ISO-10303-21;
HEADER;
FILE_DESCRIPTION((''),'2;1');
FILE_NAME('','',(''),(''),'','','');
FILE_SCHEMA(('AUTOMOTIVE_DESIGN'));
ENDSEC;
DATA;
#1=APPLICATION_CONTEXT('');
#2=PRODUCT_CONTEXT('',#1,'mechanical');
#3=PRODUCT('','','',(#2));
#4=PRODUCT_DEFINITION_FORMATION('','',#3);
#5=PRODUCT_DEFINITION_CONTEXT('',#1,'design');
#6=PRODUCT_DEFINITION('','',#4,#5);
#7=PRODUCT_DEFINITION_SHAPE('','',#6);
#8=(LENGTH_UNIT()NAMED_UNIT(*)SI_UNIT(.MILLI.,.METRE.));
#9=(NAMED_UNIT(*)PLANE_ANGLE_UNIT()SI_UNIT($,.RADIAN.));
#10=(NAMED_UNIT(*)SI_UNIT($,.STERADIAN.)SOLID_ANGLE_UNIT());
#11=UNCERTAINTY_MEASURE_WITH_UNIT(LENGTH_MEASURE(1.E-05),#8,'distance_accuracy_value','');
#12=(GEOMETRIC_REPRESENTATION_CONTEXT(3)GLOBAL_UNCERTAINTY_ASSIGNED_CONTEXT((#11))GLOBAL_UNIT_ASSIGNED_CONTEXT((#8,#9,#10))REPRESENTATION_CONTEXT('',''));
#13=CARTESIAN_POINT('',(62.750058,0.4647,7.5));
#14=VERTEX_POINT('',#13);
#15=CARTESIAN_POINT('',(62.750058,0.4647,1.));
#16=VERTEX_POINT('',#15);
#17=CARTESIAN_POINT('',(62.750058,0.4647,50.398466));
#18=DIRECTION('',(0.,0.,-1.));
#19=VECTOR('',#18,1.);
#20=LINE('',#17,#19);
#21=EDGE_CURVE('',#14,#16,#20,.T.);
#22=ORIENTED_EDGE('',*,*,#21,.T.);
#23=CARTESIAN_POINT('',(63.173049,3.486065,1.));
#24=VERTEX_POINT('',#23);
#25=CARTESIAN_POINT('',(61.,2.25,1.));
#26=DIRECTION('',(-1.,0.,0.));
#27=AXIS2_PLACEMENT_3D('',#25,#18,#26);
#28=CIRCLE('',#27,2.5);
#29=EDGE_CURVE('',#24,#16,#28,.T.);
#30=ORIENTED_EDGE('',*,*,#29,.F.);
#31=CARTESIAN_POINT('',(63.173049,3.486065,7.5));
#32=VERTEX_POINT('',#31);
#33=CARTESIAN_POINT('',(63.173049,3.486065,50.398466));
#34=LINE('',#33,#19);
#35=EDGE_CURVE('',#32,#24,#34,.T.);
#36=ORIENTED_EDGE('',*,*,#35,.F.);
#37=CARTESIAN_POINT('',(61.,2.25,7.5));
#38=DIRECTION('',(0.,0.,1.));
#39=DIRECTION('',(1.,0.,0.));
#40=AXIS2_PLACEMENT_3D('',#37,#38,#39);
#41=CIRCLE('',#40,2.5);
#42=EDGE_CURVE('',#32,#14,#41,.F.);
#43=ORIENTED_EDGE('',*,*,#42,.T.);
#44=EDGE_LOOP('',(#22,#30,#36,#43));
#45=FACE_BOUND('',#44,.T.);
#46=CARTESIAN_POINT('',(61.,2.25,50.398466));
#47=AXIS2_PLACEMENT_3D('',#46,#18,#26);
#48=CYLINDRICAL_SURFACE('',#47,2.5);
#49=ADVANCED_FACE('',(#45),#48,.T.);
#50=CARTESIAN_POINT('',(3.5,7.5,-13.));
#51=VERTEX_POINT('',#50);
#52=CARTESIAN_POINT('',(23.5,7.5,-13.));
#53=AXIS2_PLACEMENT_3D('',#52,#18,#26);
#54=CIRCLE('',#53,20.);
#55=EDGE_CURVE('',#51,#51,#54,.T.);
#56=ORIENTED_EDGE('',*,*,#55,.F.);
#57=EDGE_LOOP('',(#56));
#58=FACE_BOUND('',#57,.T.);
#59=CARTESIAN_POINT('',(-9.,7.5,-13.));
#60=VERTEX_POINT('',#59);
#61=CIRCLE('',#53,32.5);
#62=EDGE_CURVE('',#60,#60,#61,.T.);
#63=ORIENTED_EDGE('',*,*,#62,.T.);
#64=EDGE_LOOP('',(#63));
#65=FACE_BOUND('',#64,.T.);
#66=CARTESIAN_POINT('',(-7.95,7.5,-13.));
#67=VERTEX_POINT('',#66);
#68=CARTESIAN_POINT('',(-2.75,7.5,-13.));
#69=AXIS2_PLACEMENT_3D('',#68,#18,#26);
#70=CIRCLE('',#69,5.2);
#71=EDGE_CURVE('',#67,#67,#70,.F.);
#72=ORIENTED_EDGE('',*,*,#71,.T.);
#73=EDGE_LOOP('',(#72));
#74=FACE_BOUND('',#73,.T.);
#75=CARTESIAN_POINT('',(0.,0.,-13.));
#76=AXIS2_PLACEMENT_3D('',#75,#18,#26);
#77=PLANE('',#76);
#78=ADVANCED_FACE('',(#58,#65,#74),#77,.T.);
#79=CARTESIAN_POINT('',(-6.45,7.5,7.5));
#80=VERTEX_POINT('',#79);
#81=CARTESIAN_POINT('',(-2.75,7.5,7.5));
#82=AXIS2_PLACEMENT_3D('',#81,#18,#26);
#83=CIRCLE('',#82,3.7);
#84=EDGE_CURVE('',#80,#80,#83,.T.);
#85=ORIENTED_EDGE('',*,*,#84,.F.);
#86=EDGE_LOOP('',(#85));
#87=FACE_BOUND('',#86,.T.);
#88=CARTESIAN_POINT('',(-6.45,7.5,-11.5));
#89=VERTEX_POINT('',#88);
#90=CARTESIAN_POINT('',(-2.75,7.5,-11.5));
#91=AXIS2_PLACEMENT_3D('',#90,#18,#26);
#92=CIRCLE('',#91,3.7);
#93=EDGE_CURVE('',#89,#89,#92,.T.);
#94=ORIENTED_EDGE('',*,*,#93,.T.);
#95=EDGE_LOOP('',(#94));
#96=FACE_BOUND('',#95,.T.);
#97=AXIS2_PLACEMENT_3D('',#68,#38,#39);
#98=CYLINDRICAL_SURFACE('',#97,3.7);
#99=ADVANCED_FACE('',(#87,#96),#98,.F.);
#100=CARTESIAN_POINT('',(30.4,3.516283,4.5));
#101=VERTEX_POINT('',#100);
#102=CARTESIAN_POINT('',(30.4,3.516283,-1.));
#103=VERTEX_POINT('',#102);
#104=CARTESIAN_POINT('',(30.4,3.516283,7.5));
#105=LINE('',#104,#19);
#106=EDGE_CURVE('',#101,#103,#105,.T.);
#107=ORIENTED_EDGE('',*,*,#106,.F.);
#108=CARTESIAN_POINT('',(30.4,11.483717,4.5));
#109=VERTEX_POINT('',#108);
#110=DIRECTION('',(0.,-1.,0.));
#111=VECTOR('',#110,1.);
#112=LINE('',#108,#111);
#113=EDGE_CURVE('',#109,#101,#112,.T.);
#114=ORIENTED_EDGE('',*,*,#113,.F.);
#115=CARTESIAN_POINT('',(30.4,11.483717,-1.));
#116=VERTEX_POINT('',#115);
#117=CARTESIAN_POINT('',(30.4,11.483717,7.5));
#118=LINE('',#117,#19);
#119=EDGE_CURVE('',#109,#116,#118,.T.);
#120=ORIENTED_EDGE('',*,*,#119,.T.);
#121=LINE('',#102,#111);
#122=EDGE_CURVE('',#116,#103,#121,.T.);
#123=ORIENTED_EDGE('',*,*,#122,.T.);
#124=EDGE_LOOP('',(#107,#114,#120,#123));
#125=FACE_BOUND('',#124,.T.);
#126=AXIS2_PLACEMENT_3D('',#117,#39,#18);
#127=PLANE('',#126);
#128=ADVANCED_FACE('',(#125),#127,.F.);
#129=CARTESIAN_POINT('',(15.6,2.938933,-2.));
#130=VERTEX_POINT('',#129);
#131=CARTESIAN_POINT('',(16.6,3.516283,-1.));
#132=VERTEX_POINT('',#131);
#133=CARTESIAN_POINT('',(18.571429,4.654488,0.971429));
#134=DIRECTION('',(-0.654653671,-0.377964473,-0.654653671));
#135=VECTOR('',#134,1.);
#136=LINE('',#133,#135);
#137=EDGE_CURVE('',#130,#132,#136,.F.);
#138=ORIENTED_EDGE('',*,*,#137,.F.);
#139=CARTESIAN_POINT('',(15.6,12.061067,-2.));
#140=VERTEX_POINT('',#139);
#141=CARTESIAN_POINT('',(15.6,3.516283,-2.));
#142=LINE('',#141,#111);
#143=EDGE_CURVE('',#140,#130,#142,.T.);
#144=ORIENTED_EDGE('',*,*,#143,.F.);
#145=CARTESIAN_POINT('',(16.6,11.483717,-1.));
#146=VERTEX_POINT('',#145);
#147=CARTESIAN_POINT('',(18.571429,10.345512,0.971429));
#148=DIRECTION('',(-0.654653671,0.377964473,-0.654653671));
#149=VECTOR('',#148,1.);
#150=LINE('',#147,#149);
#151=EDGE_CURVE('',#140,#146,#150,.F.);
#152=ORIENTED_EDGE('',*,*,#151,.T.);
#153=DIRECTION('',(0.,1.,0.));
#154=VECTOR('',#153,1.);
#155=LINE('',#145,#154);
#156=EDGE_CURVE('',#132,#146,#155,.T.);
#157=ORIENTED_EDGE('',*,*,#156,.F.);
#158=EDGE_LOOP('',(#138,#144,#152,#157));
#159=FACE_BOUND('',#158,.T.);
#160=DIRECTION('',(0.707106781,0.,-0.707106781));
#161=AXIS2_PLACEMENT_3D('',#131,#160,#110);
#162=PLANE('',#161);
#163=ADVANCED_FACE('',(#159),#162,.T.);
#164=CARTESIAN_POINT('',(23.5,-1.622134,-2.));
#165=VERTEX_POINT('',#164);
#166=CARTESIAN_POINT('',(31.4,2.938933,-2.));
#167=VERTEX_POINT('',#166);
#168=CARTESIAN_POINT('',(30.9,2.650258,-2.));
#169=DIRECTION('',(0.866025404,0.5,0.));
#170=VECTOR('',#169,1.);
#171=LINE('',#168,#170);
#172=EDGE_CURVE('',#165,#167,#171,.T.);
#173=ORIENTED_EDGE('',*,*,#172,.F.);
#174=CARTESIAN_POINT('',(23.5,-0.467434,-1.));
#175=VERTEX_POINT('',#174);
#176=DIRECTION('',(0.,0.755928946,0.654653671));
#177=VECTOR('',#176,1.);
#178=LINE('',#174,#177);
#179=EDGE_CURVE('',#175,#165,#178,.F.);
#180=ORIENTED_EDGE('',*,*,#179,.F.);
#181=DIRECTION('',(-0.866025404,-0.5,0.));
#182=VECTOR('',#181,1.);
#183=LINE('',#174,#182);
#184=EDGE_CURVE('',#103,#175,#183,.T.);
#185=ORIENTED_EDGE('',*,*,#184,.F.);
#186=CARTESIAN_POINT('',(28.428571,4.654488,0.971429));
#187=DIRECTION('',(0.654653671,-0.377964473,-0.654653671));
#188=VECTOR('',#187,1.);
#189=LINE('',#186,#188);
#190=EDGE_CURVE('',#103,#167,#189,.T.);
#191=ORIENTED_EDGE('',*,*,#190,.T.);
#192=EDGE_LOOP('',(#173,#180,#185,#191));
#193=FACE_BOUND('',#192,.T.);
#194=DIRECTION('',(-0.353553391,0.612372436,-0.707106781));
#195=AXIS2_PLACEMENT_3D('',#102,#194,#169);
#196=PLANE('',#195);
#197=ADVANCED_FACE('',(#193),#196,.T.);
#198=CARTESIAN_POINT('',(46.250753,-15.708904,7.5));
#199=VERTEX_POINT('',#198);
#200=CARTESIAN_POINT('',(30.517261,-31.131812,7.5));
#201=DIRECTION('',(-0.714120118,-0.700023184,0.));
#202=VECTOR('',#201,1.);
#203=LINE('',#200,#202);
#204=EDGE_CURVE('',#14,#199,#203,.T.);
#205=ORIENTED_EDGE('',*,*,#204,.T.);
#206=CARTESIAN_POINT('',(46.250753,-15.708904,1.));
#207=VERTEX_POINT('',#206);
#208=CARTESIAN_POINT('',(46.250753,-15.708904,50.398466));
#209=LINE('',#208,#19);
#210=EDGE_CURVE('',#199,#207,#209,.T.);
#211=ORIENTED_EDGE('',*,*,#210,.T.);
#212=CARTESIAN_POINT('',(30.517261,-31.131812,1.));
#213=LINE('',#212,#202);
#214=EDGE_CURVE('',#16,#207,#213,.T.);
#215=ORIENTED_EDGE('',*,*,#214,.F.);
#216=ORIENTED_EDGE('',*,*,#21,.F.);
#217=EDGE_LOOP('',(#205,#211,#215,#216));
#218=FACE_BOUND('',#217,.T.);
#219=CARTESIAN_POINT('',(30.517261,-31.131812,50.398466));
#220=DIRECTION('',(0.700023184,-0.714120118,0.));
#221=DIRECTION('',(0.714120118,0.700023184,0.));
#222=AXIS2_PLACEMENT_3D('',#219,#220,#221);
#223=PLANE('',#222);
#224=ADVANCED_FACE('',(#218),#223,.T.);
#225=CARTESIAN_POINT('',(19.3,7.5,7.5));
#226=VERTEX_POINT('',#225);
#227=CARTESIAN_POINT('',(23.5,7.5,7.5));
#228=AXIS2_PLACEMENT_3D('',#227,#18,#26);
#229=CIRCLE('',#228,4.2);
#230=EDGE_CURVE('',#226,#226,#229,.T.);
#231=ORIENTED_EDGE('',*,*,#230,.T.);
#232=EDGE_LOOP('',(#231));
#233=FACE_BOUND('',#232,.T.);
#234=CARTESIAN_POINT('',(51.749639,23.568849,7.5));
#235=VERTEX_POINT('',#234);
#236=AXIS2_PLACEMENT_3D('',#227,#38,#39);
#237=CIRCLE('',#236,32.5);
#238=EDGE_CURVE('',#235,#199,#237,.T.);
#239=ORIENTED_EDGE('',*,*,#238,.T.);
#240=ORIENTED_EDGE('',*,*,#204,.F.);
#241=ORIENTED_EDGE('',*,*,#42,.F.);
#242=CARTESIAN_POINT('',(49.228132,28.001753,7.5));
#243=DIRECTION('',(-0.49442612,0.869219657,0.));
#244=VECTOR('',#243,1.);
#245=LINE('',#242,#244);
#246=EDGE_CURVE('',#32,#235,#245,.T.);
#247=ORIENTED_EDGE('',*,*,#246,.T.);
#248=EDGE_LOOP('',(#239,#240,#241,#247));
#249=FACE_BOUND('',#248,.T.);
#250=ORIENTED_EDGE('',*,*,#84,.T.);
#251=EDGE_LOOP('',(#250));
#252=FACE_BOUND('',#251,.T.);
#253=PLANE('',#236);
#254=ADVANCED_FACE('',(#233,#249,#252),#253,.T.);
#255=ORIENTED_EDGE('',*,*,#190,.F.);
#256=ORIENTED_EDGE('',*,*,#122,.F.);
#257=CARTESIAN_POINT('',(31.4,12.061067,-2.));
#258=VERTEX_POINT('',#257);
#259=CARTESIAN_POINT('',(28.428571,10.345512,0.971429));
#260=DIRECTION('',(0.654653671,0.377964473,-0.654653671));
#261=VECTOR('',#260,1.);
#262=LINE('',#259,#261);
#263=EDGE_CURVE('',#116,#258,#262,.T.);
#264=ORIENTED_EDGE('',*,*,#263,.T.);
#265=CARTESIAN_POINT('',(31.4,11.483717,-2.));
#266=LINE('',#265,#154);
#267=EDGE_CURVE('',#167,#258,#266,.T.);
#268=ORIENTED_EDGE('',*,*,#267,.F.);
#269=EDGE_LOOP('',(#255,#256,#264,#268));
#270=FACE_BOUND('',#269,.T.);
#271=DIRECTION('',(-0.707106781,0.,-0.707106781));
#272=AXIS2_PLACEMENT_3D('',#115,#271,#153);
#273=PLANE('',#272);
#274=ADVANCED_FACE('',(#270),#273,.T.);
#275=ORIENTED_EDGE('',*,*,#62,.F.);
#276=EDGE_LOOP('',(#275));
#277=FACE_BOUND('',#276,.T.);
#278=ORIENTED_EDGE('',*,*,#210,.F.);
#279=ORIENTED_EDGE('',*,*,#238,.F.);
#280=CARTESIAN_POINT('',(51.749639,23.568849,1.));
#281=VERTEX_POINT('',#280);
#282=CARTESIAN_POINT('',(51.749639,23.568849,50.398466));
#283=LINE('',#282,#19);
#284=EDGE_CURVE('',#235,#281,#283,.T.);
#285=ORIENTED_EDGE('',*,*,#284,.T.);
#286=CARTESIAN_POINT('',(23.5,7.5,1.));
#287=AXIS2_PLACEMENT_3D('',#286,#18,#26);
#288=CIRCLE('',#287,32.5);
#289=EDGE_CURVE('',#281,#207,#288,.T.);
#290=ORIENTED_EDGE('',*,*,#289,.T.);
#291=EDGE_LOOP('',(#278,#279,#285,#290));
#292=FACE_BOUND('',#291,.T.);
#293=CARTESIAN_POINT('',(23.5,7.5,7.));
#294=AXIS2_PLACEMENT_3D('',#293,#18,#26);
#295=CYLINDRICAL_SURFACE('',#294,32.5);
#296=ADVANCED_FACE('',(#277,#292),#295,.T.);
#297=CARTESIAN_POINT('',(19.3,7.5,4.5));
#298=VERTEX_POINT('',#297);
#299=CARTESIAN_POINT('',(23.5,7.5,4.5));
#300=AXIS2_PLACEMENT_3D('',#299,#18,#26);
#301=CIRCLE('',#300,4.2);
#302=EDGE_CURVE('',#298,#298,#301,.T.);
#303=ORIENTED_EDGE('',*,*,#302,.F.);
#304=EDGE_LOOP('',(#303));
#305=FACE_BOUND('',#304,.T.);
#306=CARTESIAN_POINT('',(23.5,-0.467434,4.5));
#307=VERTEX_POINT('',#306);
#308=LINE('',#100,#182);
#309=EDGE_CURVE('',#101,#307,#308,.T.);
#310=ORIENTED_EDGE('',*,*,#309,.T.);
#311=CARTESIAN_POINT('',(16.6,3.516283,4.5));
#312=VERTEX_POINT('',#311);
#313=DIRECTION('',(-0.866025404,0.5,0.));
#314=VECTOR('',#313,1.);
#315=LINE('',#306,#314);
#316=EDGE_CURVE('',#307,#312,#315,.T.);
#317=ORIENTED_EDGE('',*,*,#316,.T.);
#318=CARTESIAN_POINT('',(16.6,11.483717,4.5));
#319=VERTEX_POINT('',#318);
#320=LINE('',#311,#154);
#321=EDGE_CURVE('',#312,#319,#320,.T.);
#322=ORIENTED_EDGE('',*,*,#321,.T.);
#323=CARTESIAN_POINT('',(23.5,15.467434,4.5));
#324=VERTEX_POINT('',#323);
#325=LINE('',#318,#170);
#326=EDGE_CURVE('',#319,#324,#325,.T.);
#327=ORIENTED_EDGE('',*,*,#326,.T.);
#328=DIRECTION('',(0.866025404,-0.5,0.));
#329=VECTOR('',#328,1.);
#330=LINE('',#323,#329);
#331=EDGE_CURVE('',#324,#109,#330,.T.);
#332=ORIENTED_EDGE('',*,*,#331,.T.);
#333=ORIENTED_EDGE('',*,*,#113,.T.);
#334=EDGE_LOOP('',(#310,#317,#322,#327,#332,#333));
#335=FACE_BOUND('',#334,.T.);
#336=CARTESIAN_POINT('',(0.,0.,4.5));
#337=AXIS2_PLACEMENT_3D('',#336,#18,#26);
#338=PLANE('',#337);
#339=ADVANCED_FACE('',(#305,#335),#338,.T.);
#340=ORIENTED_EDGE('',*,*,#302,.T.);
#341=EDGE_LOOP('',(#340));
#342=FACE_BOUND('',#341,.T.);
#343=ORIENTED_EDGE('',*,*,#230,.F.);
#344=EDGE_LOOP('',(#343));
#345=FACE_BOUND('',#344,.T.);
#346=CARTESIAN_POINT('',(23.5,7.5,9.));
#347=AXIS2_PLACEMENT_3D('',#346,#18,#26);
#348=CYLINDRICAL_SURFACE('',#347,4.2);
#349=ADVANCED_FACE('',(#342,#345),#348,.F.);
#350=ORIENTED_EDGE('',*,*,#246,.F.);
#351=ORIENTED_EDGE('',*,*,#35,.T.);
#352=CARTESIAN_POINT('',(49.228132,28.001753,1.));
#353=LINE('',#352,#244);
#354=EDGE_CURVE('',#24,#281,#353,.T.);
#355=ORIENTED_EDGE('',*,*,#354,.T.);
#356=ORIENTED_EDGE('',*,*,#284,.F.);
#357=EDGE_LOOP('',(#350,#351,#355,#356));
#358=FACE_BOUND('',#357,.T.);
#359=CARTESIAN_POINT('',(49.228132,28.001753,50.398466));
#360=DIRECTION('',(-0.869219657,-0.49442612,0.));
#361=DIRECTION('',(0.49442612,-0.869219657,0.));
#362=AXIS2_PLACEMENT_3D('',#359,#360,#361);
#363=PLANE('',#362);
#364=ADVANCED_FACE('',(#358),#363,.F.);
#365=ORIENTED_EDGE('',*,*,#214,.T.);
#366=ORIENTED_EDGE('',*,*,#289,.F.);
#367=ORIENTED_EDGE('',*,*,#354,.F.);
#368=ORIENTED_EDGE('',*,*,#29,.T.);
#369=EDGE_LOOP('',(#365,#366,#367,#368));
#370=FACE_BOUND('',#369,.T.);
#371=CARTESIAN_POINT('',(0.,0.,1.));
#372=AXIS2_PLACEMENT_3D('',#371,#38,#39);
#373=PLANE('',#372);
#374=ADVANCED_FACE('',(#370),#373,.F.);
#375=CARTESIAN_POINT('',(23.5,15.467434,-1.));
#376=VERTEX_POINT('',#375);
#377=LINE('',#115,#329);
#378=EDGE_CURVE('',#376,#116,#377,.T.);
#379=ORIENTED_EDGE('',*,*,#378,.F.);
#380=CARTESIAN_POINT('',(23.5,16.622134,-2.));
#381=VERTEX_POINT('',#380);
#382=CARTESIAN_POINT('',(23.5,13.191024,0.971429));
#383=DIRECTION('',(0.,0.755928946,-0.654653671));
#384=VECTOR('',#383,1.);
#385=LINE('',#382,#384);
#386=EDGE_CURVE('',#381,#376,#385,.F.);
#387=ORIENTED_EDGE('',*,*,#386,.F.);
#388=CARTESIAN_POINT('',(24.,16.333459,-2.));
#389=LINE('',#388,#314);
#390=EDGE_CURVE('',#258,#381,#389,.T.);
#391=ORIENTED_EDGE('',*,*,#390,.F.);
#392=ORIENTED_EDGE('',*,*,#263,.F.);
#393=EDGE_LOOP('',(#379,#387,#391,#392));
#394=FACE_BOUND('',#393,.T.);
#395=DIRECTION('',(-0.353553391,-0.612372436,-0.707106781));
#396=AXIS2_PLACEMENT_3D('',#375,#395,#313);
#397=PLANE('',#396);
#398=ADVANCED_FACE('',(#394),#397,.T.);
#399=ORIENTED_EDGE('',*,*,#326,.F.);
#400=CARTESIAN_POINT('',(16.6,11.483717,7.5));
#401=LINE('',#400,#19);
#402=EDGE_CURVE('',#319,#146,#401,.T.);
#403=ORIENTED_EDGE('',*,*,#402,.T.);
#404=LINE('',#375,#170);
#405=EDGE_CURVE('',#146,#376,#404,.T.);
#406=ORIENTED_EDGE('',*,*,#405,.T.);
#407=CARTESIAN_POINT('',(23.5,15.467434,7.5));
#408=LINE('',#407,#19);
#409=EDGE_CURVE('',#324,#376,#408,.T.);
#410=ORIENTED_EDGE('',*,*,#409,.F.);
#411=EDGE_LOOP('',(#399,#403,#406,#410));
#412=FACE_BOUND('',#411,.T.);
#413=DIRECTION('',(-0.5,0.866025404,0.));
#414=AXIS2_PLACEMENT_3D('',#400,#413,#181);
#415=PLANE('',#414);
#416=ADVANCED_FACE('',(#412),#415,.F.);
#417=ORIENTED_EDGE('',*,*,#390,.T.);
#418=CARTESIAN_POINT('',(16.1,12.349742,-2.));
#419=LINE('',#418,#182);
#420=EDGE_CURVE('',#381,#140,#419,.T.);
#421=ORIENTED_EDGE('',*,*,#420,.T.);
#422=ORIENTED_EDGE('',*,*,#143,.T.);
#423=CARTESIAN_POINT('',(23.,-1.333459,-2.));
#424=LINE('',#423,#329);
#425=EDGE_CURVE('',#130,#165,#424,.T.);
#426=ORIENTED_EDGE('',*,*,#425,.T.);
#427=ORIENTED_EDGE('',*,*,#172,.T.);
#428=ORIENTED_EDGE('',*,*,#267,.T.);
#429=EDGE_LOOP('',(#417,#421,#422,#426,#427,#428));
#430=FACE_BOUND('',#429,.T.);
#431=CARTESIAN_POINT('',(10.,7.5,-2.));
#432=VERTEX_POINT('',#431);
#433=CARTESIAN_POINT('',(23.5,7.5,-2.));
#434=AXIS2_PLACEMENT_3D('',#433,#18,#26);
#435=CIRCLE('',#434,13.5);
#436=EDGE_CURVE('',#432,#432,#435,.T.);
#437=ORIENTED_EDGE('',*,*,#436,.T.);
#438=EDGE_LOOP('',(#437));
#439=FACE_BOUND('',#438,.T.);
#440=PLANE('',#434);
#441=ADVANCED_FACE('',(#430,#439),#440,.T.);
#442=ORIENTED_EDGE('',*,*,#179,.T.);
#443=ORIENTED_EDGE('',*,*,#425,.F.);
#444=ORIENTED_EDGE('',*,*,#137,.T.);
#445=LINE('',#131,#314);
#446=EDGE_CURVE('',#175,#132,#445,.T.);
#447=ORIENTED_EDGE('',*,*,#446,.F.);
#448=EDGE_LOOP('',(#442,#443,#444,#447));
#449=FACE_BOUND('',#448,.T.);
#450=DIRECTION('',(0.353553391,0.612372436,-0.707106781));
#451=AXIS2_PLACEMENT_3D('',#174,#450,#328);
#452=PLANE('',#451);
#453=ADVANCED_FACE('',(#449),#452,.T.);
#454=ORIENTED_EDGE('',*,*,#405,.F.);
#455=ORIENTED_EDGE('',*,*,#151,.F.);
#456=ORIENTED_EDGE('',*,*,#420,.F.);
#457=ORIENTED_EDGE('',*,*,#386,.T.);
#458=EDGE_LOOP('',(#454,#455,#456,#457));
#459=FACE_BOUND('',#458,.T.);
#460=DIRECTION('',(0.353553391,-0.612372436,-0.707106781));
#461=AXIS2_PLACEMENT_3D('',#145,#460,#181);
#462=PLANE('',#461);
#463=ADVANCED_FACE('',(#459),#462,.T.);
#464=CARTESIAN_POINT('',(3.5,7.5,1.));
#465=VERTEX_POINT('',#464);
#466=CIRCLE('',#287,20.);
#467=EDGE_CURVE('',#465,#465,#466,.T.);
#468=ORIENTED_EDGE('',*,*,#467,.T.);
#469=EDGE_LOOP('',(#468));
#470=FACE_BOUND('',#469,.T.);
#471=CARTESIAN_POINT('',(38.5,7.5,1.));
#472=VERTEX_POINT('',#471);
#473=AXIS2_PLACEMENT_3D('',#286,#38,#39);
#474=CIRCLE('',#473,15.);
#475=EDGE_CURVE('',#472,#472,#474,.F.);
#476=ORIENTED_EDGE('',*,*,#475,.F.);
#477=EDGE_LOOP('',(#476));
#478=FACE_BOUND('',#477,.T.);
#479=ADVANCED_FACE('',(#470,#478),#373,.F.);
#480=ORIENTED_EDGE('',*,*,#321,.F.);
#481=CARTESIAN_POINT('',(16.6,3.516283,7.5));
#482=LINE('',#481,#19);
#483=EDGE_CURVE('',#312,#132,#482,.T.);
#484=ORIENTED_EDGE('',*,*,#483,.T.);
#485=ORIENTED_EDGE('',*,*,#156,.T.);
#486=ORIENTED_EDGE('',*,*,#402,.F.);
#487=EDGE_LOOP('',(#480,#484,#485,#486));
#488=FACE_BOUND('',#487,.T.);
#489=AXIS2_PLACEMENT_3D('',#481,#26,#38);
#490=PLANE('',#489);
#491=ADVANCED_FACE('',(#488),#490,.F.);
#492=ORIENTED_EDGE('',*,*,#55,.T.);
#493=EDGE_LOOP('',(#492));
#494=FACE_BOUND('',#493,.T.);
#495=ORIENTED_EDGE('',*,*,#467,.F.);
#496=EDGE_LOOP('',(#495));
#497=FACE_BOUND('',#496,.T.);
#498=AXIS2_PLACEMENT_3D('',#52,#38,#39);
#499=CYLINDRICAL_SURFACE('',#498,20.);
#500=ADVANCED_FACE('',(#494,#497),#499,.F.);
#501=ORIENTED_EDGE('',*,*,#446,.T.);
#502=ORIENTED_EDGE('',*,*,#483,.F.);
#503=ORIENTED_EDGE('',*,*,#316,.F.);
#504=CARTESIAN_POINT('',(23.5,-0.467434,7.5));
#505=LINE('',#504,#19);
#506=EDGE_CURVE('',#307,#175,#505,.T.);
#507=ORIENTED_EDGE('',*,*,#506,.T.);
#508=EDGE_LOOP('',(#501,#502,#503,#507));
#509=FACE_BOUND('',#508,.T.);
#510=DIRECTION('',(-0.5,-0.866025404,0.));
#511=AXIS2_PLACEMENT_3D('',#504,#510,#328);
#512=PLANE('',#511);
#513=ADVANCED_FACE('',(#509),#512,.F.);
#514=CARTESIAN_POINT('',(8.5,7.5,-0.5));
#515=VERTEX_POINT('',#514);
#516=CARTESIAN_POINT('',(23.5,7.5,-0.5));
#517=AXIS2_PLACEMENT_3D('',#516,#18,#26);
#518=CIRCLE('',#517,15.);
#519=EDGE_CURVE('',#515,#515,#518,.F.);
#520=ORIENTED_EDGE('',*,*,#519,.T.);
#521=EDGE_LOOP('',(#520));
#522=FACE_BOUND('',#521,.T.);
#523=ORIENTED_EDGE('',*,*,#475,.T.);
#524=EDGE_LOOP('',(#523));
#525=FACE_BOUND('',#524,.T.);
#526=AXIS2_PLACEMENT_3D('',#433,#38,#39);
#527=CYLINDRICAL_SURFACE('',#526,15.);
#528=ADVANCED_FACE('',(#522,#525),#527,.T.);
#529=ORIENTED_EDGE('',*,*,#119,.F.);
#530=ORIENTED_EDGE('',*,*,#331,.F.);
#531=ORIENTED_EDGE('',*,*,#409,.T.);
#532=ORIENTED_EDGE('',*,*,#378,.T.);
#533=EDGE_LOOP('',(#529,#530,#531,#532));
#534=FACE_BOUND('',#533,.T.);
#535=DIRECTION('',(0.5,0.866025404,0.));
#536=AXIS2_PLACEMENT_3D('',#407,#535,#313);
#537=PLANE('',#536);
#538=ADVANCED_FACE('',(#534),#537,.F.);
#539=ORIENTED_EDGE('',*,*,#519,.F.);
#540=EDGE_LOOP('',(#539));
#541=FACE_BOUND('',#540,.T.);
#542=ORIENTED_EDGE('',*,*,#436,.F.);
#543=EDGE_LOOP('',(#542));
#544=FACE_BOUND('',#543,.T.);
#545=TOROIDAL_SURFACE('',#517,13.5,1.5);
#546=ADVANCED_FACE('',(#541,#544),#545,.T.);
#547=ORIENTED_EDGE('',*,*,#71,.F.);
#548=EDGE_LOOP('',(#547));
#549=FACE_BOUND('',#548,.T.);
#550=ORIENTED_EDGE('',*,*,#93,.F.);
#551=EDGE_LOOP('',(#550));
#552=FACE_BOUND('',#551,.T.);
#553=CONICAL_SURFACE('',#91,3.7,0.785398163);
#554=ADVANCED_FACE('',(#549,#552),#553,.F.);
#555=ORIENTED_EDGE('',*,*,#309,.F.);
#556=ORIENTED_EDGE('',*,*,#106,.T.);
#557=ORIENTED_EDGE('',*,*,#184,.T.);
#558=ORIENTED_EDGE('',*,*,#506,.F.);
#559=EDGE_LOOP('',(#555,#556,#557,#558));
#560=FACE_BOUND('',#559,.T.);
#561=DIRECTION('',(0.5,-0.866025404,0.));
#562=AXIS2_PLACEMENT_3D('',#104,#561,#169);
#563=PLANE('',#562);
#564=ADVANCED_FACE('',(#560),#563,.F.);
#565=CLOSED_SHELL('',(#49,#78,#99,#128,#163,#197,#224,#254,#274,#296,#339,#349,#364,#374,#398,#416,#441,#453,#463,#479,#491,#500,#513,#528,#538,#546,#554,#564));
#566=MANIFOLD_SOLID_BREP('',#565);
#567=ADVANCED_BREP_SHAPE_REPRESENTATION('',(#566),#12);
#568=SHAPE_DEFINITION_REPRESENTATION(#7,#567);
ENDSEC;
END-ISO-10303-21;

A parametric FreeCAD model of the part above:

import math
import FreeCAD as App
import Part
import Sketcher
Q = App.Units.Quantity


def edges_at(feature, points):
    """Names of the edges that pass closest to the given points."""
    edges = feature.Shape.Edges
    near = lambda p: min(range(len(edges)), key=lambda i: edges[i].distToShape(Part.Vertex(*p))[0])
    return sorted({f"Edge{near(p) + 1}" for p in points})

doc = App.newDocument("Part")
body = doc.addObject("PartDesign::Body", "Body")

# Sketch on XY plane
sketch1 = body.newObject("Sketcher::SketchObject", "Sketch")
sketch1.AttachmentSupport = (doc.getObject("XY_Plane"), [""])
sketch1.MapMode = "FlatFace"
sketch1.AttachmentOffset = App.Placement(App.Vector(0, 0, 1), App.Rotation())
sketch1.addGeometry([
    Part.Circle(App.Vector(23.5, 7.5, 0), App.Vector(0, 0, 1), 32.5),  # 0
    Part.ArcOfCircle(Part.Circle(App.Vector(0, 0, 0), App.Vector(0, 0, 1), 3.5), math.radians(180), math.radians(360)),  # 1
    Part.LineSegment(App.Vector(-3.5, 0, 0), App.Vector(-3.5, 15, 0)),  # 2
    Part.ArcOfCircle(Part.Circle(App.Vector(0, 15, 0), App.Vector(0, 0, 1), 3.5), math.radians(0), math.radians(180)),  # 3
    Part.LineSegment(App.Vector(3.5, 15, 0), App.Vector(3.5, 0, 0)),  # 4
], False)
sketch1.addConstraint([
    Sketcher.Constraint("Tangent", 1, 1, 2, 1),
    Sketcher.Constraint("Tangent", 2, 2, 3, 2),
    Sketcher.Constraint("Tangent", 3, 1, 4, 1),
    Sketcher.Constraint("Tangent", 4, 2, 1, 2),
    Sketcher.Constraint("Vertical", 2),
    Sketcher.Constraint("Vertical", 4),
    Sketcher.Constraint("Coincident", 1, 3, -1, 1),
    Sketcher.Constraint("Diameter", 0, Q("65 mm")),
    Sketcher.Constraint("Radius", 1, Q("3.5 mm")),
    Sketcher.Constraint("DistanceY", 2, 1, 2, 2, Q("15 mm")),
    Sketcher.Constraint("DistanceX", 1, 1, 0, 3, Q("27 mm")),
    Sketcher.Constraint("DistanceY", -1, 1, 0, 3, Q("7.5 mm")),
])
pad1 = body.newObject("PartDesign::Pad", "Pad")
pad1.Profile = sketch1
pad1.Length = 6

# Sketch on XY plane
sketch2 = body.newObject("Sketcher::SketchObject", "Sketch001")
sketch2.AttachmentSupport = (doc.getObject("XY_Plane"), [""])
sketch2.MapMode = "FlatFace"
sketch2.AttachmentOffset = App.Placement(App.Vector(0, 0, 7), App.Rotation())
sketch2.addGeometry(Part.Circle(App.Vector(23.5, 7.5, 0), App.Vector(0, 0, 1), 32.5), False)
sketch2.addConstraint([
    Sketcher.Constraint("Diameter", 0, Q("65 mm")),
    Sketcher.Constraint("DistanceX", -1, 1, 0, 3, Q("23.5 mm")),
    Sketcher.Constraint("DistanceY", -1, 1, 0, 3, Q("7.5 mm")),
])
pad2 = body.newObject("PartDesign::Pad", "Pad001")
pad2.Profile = sketch2
pad2.Length = 2
doc.recompute()

chamfer = body.newObject("PartDesign::Chamfer", "Chamfer")
chamfer.Base = (pad2, edges_at(pad2, [
    (-3.5, 7.5, 1),
    (0, -3.5, 1),
    (3.5, 7.5, 1),
    (0, 18.5, 1),
]))
chamfer.Size = 2

# Sketch on XY plane
sketch3 = body.newObject("Sketcher::SketchObject", "Sketch002")
sketch3.AttachmentSupport = (doc.getObject("XY_Plane"), [""])
sketch3.MapMode = "FlatFace"
sketch3.AttachmentOffset = App.Placement(App.Vector(0, 0, 1), App.Rotation())
sketch3.addGeometry([
    Part.LineSegment(App.Vector(23.5, 15.467434, 0), App.Vector(30.4, 11.483717, 0)),  # 0
    Part.LineSegment(App.Vector(30.4, 11.483717, 0), App.Vector(30.4, 3.516283, 0)),  # 1
    Part.LineSegment(App.Vector(30.4, 3.516283, 0), App.Vector(23.5, -0.467434, 0)),  # 2
    Part.LineSegment(App.Vector(23.5, -0.467434, 0), App.Vector(16.6, 3.516283, 0)),  # 3
    Part.LineSegment(App.Vector(16.6, 3.516283, 0), App.Vector(16.6, 11.483717, 0)),  # 4
    Part.LineSegment(App.Vector(16.6, 11.483717, 0), App.Vector(23.5, 15.467434, 0)),  # 5
], False)
sketch3.addConstraint([
    Sketcher.Constraint("Coincident", 0, 2, 1, 1),
    Sketcher.Constraint("Coincident", 1, 2, 2, 1),
    Sketcher.Constraint("Coincident", 2, 2, 3, 1),
    Sketcher.Constraint("Coincident", 3, 2, 4, 1),
    Sketcher.Constraint("Coincident", 4, 2, 5, 1),
    Sketcher.Constraint("Coincident", 5, 2, 0, 1),
    Sketcher.Constraint("Vertical", 1),
    Sketcher.Constraint("Vertical", 4),
    Sketcher.Constraint("Parallel", 0, 3),
    Sketcher.Constraint("Parallel", 2, 5),
    Sketcher.Constraint("Horizontal", 1, 2, 3, 2),
    Sketcher.Constraint("Horizontal", 0, 2, 4, 2),
    Sketcher.Constraint("Vertical", 2, 2, 5, 2),
    Sketcher.Constraint("Angle", 0, Q("-30 deg")),
    Sketcher.Constraint("DistanceX", -1, 1, 0, 2, Q("30.4 mm")),
    Sketcher.Constraint("DistanceX", -1, 1, 2, 2, Q("23.5 mm")),
    Sketcher.Constraint("DistanceY", 1, 2, 1, 1, Q("7.967434 mm")),
    Sketcher.Constraint("DistanceY", -1, 1, 0, 2, Q("11.483717 mm")),
])
pocket1 = body.newObject("PartDesign::Pocket", "Pocket")
pocket1.Profile = sketch3
pocket1.Length = 6.5
pocket1.Reversed = True

# Sketch on XY plane
sketch4 = body.newObject("Sketcher::SketchObject", "Sketch003")
sketch4.AttachmentSupport = (doc.getObject("XY_Plane"), [""])
sketch4.MapMode = "FlatFace"
sketch4.AttachmentOffset = App.Placement(App.Vector(0, 0, 7.5), App.Rotation())
sketch4.addGeometry(Part.Circle(App.Vector(23.5, 7.5, 0), App.Vector(0, 0, 1), 4.2), False)
sketch4.addConstraint([
    Sketcher.Constraint("Diameter", 0, Q("8.4 mm")),
    Sketcher.Constraint("DistanceX", -1, 1, 0, 3, Q("23.5 mm")),
    Sketcher.Constraint("DistanceY", -1, 1, 0, 3, Q("7.5 mm")),
])
pocket2 = body.newObject("PartDesign::Pocket", "Pocket001")
pocket2.Profile = sketch4
pocket2.Type = "ThroughAll"
pocket2.Reversed = True

# Sketch on XY plane
sketch5 = body.newObject("Sketcher::SketchObject", "Sketch004")
sketch5.AttachmentSupport = (doc.getObject("XY_Plane"), [""])
sketch5.MapMode = "FlatFace"
sketch5.AttachmentOffset = App.Placement(App.Vector(0, 0, 7), App.Rotation())
sketch5.addGeometry([
    Part.LineSegment(App.Vector(3.5, 15, 0), App.Vector(3.5, 0, 0)),
    Part.ArcOfCircle(Part.Circle(App.Vector(0, 0, 0), App.Vector(0, 0, 1), 3.5), math.radians(180), math.radians(360)),
    Part.LineSegment(App.Vector(-3.5, 0, 0), App.Vector(-3.5, 15, 0)),
    Part.ArcOfCircle(Part.Circle(App.Vector(0, 15, 0), App.Vector(0, 0, 1), 3.5), math.radians(0), math.radians(180)),
], False)
sketch5.addConstraint([
    Sketcher.Constraint("Tangent", 0, 2, 1, 2),
    Sketcher.Constraint("Tangent", 1, 1, 2, 1),
    Sketcher.Constraint("Tangent", 2, 2, 3, 2),
    Sketcher.Constraint("Tangent", 3, 1, 0, 1),
    Sketcher.Constraint("Vertical", 0),
    Sketcher.Constraint("Vertical", 2),
    Sketcher.Constraint("Coincident", 1, 3, -1, 1),
    Sketcher.Constraint("Radius", 1, Q("3.5 mm")),
    Sketcher.Constraint("DistanceY", 0, 2, 0, 1, Q("15 mm")),
])
pocket3 = body.newObject("PartDesign::Pocket", "Pocket002")
pocket3.Profile = sketch5
pocket3.Type = "ThroughAll"
pocket3.Reversed = True

# Sketch on XY plane
sketch6 = body.newObject("Sketcher::SketchObject", "Sketch005")
sketch6.AttachmentSupport = (doc.getObject("XY_Plane"), [""])
sketch6.MapMode = "FlatFace"
sketch6.AttachmentOffset = App.Placement(App.Vector(0, 0, 1), App.Rotation())
sketch6.addGeometry([
    Part.Circle(App.Vector(23.5, 7.5, 0), App.Vector(0, 0, 1), 15),  # 0
    Part.LineSegment(App.Vector(16.6, 11.483717, 0), App.Vector(16.6, 3.516283, 0)),  # 1
    Part.LineSegment(App.Vector(16.6, 3.516283, 0), App.Vector(23.5, -0.467434, 0)),  # 2
    Part.LineSegment(App.Vector(23.5, -0.467434, 0), App.Vector(30.4, 3.516283, 0)),  # 3
    Part.LineSegment(App.Vector(30.4, 3.516283, 0), App.Vector(30.4, 11.483717, 0)),  # 4
    Part.LineSegment(App.Vector(30.4, 11.483717, 0), App.Vector(23.5, 15.467434, 0)),  # 5
    Part.LineSegment(App.Vector(23.5, 15.467434, 0), App.Vector(16.6, 11.483717, 0)),  # 6
], False)
sketch6.addConstraint([
    Sketcher.Constraint("Coincident", 1, 2, 2, 1),
    Sketcher.Constraint("Coincident", 2, 2, 3, 1),
    Sketcher.Constraint("Coincident", 3, 2, 4, 1),
    Sketcher.Constraint("Coincident", 4, 2, 5, 1),
    Sketcher.Constraint("Coincident", 5, 2, 6, 1),
    Sketcher.Constraint("Coincident", 6, 2, 1, 1),
    Sketcher.Constraint("Vertical", 1),
    Sketcher.Constraint("Vertical", 4),
    Sketcher.Constraint("Parallel", 2, 5),
    Sketcher.Constraint("Parallel", 3, 6),
    Sketcher.Constraint("Horizontal", 1, 2, 3, 2),
    Sketcher.Constraint("Horizontal", 4, 2, 6, 2),
    Sketcher.Constraint("Vertical", 0, 3, 2, 2),
    Sketcher.Constraint("Vertical", 2, 2, 5, 2),
    Sketcher.Constraint("Diameter", 0, Q("30 mm")),
    Sketcher.Constraint("Angle", 2, Q("-30 deg")),
    Sketcher.Constraint("DistanceX", -1, 1, 0, 3, Q("23.5 mm")),
    Sketcher.Constraint("DistanceY", -1, 1, 0, 3, Q("7.5 mm")),
    Sketcher.Constraint("DistanceX", -1, 1, 1, 2, Q("16.6 mm")),
    Sketcher.Constraint("DistanceY", 1, 2, 1, 1, Q("7.967434 mm")),
    Sketcher.Constraint("DistanceY", -1, 1, 1, 2, Q("3.516283 mm")),
])
pad3 = body.newObject("PartDesign::Pad", "Pad002")
pad3.Profile = sketch6
pad3.Length = 3
pad3.Reversed = True

# Sketch on XY plane
sketch7 = body.newObject("Sketcher::SketchObject", "Sketch006")
sketch7.AttachmentSupport = (doc.getObject("XY_Plane"), [""])
sketch7.MapMode = "FlatFace"
sketch7.AttachmentOffset = App.Placement(App.Vector(0, 0, 4.5), App.Rotation())
sketch7.addGeometry([
    Part.LineSegment(App.Vector(16.6, 11.483717, 0), App.Vector(23.5, 15.467434, 0)),  # 0
    Part.LineSegment(App.Vector(23.5, 15.467434, 0), App.Vector(30.4, 11.483717, 0)),  # 1
    Part.LineSegment(App.Vector(30.4, 11.483717, 0), App.Vector(30.4, 3.516283, 0)),  # 2
    Part.LineSegment(App.Vector(30.4, 3.516283, 0), App.Vector(23.5, -0.467434, 0)),  # 3
    Part.LineSegment(App.Vector(23.5, -0.467434, 0), App.Vector(16.6, 3.516283, 0)),  # 4
    Part.LineSegment(App.Vector(16.6, 3.516283, 0), App.Vector(16.6, 11.483717, 0)),  # 5
    Part.Circle(App.Vector(23.5, 7.5, 0), App.Vector(0, 0, 1), 4.2),  # 6
], False)
sketch7.addConstraint([
    Sketcher.Constraint("Coincident", 0, 2, 1, 1),
    Sketcher.Constraint("Coincident", 1, 2, 2, 1),
    Sketcher.Constraint("Coincident", 2, 2, 3, 1),
    Sketcher.Constraint("Coincident", 3, 2, 4, 1),
    Sketcher.Constraint("Coincident", 4, 2, 5, 1),
    Sketcher.Constraint("Coincident", 5, 2, 0, 1),
    Sketcher.Constraint("Vertical", 2),
    Sketcher.Constraint("Vertical", 5),
    Sketcher.Constraint("Parallel", 0, 3),
    Sketcher.Constraint("Parallel", 1, 4),
    Sketcher.Constraint("Horizontal", 2, 2, 4, 2),
    Sketcher.Constraint("Horizontal", 1, 2, 5, 2),
    Sketcher.Constraint("Vertical", 6, 3, 0, 2),
    Sketcher.Constraint("Vertical", 0, 2, 3, 2),
    Sketcher.Constraint("Diameter", 6, Q("8.4 mm")),
    Sketcher.Constraint("Angle", 0, Q("30 deg")),
    Sketcher.Constraint("DistanceX", -1, 1, 6, 3, Q("23.5 mm")),
    Sketcher.Constraint("DistanceY", -1, 1, 6, 3, Q("7.5 mm")),
    Sketcher.Constraint("DistanceX", -1, 1, 1, 2, Q("30.4 mm")),
    Sketcher.Constraint("DistanceY", 2, 2, 2, 1, Q("7.967434 mm")),
    Sketcher.Constraint("DistanceY", -1, 1, 0, 2, Q("15.467434 mm")),
])
pad4 = body.newObject("PartDesign::Pad", "Pad003")
pad4.Profile = sketch7
pad4.Length = 3

# Sketch on XY plane
sketch8 = body.newObject("Sketcher::SketchObject", "Sketch007")
sketch8.AttachmentSupport = (doc.getObject("XY_Plane"), [""])
sketch8.MapMode = "FlatFace"
sketch8.AttachmentOffset = App.Placement(App.Vector(0, 0, 6), App.Rotation())
sketch8.addGeometry(Part.Circle(App.Vector(23.5, 7.5, 0), App.Vector(0, 0, 1), 32.5), False)
sketch8.addConstraint([
    Sketcher.Constraint("Diameter", 0, Q("65 mm")),
    Sketcher.Constraint("DistanceX", -1, 1, 0, 3, Q("23.5 mm")),
    Sketcher.Constraint("DistanceY", -1, 1, 0, 3, Q("7.5 mm")),
])
pocket4 = body.newObject("PartDesign::Pocket", "Pocket003")
pocket4.Profile = sketch8
pocket4.Length = 3
pocket4.Reversed = True
doc.recompute()

fillet = body.newObject("PartDesign::Fillet", "Fillet")
fillet.Base = (pocket4, edges_at(pocket4, [(8.5, 7.5, -2)]))
fillet.Radius = 1.5

# Sketch on XY plane
sketch9 = body.newObject("Sketcher::SketchObject", "Sketch008")
sketch9.AttachmentSupport = (doc.getObject("XY_Plane"), [""])
sketch9.MapMode = "FlatFace"
sketch9.AttachmentOffset = App.Placement(App.Vector(0, 0, 6), App.Rotation())
sketch9.addGeometry([
    Part.Circle(App.Vector(23.5, 7.5, 0), App.Vector(0, 0, 1), 32.5),  # 0
    Part.ArcOfCircle(Part.Circle(App.Vector(0, 15, 0), App.Vector(0, 0, 1), 3.5), math.radians(0), math.radians(180)),  # 1
    Part.LineSegment(App.Vector(3.5, 15, 0), App.Vector(3.5, 0, 0)),  # 2
    Part.ArcOfCircle(Part.Circle(App.Vector(0, 0, 0), App.Vector(0, 0, 1), 3.5), math.radians(180), math.radians(360)),  # 3
    Part.LineSegment(App.Vector(-3.5, 0, 0), App.Vector(-3.5, 15, 0)),  # 4
], False)
sketch9.addConstraint([
    Sketcher.Constraint("Tangent", 1, 1, 2, 1),
    Sketcher.Constraint("Tangent", 2, 2, 3, 2),
    Sketcher.Constraint("Tangent", 3, 1, 4, 1),
    Sketcher.Constraint("Tangent", 4, 2, 1, 2),
    Sketcher.Constraint("Vertical", 2),
    Sketcher.Constraint("Vertical", 4),
    Sketcher.Constraint("Coincident", 3, 3, -1, 1),
    Sketcher.Constraint("Diameter", 0, Q("65 mm")),
    Sketcher.Constraint("Radius", 1, Q("3.5 mm")),
    Sketcher.Constraint("DistanceY", 2, 2, 2, 1, Q("15 mm")),
    Sketcher.Constraint("DistanceX", 1, 1, 0, 3, Q("20 mm")),
    Sketcher.Constraint("DistanceY", -1, 1, 0, 3, Q("7.5 mm")),
])
pad5 = body.newObject("PartDesign::Pad", "Pad004")
pad5.Profile = sketch9
pad5.Length = 1.5

# Sketch on XY plane
sketch10 = body.newObject("Sketcher::SketchObject", "Sketch009")
sketch10.AttachmentSupport = (doc.getObject("XY_Plane"), [""])
sketch10.MapMode = "FlatFace"
sketch10.AttachmentOffset = App.Placement(App.Vector(0, 0, 6), App.Rotation())
sketch10.addGeometry(Part.Circle(App.Vector(23.5, 7.5, 0), App.Vector(0, 0, 1), 4.2), False)
sketch10.addConstraint([
    Sketcher.Constraint("Diameter", 0, Q("8.4 mm")),
    Sketcher.Constraint("DistanceX", -1, 1, 0, 3, Q("23.5 mm")),
    Sketcher.Constraint("DistanceY", -1, 1, 0, 3, Q("7.5 mm")),
])
pocket5 = body.newObject("PartDesign::Pocket", "Pocket004")
pocket5.Profile = sketch10
pocket5.Type = "ThroughAll"
pocket5.Reversed = True
doc.recompute()

chamfer2 = body.newObject("PartDesign::Chamfer", "Chamfer001")
chamfer2.Base = (pocket5, edges_at(pocket5, [
    (20.05, 1.524, -2),
    (16.6, 7.5, -2),
    (20.05, 13.476, -2),
    (26.95, 13.476, -2),
    (30.4, 7.5, -2),
    (26.95, 1.524, -2),
]))
chamfer2.Size = 1

# Sketch on XY plane
sketch11 = body.newObject("Sketcher::SketchObject", "Sketch010")
sketch11.AttachmentSupport = (doc.getObject("XY_Plane"), [""])
sketch11.MapMode = "FlatFace"
sketch11.AttachmentOffset = App.Placement(App.Vector(0, 0, 1), App.Rotation())
sketch11.addGeometry([
    Part.LineSegment(App.Vector(51.749639, 23.568849, 0), App.Vector(63.173049, 3.486065, 0)),
    Part.ArcOfCircle(Part.Circle(App.Vector(61, 2.25, 0), App.Vector(0, 0, 1), 2.5), math.radians(-45.571136), math.radians(29.631915)),
    Part.LineSegment(App.Vector(62.750058, 0.4647, 0), App.Vector(46.250753, -15.708904, 0)),
    Part.ArcOfCircle(Part.Circle(App.Vector(23.5, 7.5, 0), App.Vector(0, 0, 1), 32.5), math.radians(-45.571136), math.radians(29.631915)),
], False)
sketch11.addConstraint([
    Sketcher.Constraint("Tangent", 0, 2, 1, 2),
    Sketcher.Constraint("Tangent", 1, 1, 2, 1),
    Sketcher.Constraint("Tangent", 2, 2, 3, 1),
    Sketcher.Constraint("Tangent", 3, 2, 0, 1),
    Sketcher.Constraint("Radius", 1, Q("2.5 mm")),
    Sketcher.Constraint("Radius", 3, Q("32.5 mm")),
    Sketcher.Constraint("DistanceX", -1, 1, 1, 3, Q("61 mm")),
    Sketcher.Constraint("DistanceX", -1, 1, 3, 3, Q("23.5 mm")),
    Sketcher.Constraint("DistanceY", -1, 1, 3, 3, Q("7.5 mm")),
    Sketcher.Constraint("DistanceY", -1, 1, 1, 3, Q("2.25 mm")),
])
pad6 = body.newObject("PartDesign::Pad", "Pad005")
pad6.Profile = sketch11
pad6.Length = 6.5

# Sketch on XY plane
sketch12 = body.newObject("Sketcher::SketchObject", "Sketch011")
sketch12.AttachmentSupport = (doc.getObject("XY_Plane"), [""])
sketch12.MapMode = "FlatFace"
sketch12.AttachmentOffset = App.Placement(App.Vector(0, 0, 1), App.Rotation())
sketch12.addGeometry([
    Part.LineSegment(App.Vector(46.250753, -15.708904, 0), App.Vector(62.750058, 0.4647, 0)),  # 0
    Part.ArcOfCircle(Part.Circle(App.Vector(61, 2.25, 0), App.Vector(0, 0, 1), 2.5), math.radians(-45.571136), math.radians(29.631915)),  # 1
    Part.LineSegment(App.Vector(63.173049, 3.486065, 0), App.Vector(51.749639, 23.568849, 0)),  # 2
    Part.ArcOfCircle(Part.Circle(App.Vector(23.5, 7.5, 0), App.Vector(0, 0, 1), 32.5), math.radians(29.631915), math.radians(314.428864)),  # 3
    Part.LineSegment(App.Vector(30.4, 3.516283, 0), App.Vector(23.5, -0.467434, 0)),  # 4
    Part.LineSegment(App.Vector(23.5, -0.467434, 0), App.Vector(16.6, 3.516283, 0)),  # 5
    Part.LineSegment(App.Vector(16.6, 3.516283, 0), App.Vector(16.6, 11.483717, 0)),  # 6
    Part.LineSegment(App.Vector(16.6, 11.483717, 0), App.Vector(23.5, 15.467434, 0)),  # 7
    Part.LineSegment(App.Vector(23.5, 15.467434, 0), App.Vector(30.4, 11.483717, 0)),  # 8
    Part.LineSegment(App.Vector(30.4, 11.483717, 0), App.Vector(30.4, 3.516283, 0)),  # 9
], False)
sketch12.addConstraint([
    Sketcher.Constraint("Tangent", 0, 2, 1, 1),
    Sketcher.Constraint("Tangent", 1, 2, 2, 1),
    Sketcher.Constraint("Tangent", 2, 2, 3, 1),
    Sketcher.Constraint("Tangent", 3, 2, 0, 1),
    Sketcher.Constraint("Coincident", 4, 2, 5, 1),
    Sketcher.Constraint("Coincident", 5, 2, 6, 1),
    Sketcher.Constraint("Coincident", 6, 2, 7, 1),
    Sketcher.Constraint("Coincident", 7, 2, 8, 1),
    Sketcher.Constraint("Coincident", 8, 2, 9, 1),
    Sketcher.Constraint("Coincident", 9, 2, 4, 1),
    Sketcher.Constraint("Vertical", 6),
    Sketcher.Constraint("Vertical", 9),
    Sketcher.Constraint("Parallel", 4, 7),
    Sketcher.Constraint("Parallel", 5, 8),
    Sketcher.Constraint("Horizontal", 6, 2, 8, 2),
    Sketcher.Constraint("Horizontal", 5, 2, 9, 2),
    Sketcher.Constraint("Vertical", 3, 3, 4, 2),
    Sketcher.Constraint("Vertical", 4, 2, 7, 2),
    Sketcher.Constraint("Radius", 1, Q("2.5 mm")),
    Sketcher.Constraint("Radius", 3, Q("32.5 mm")),
    Sketcher.Constraint("Angle", 4, Q("-150 deg")),
    Sketcher.Constraint("DistanceX", -1, 1, 1, 3, Q("61 mm")),
    Sketcher.Constraint("DistanceX", -1, 1, 3, 3, Q("23.5 mm")),
    Sketcher.Constraint("DistanceY", -1, 1, 3, 3, Q("7.5 mm")),
    Sketcher.Constraint("DistanceX", -1, 1, 5, 2, Q("16.6 mm")),
    Sketcher.Constraint("DistanceY", -1, 1, 1, 3, Q("2.25 mm")),
    Sketcher.Constraint("DistanceY", 6, 1, 6, 2, Q("7.967434 mm")),
    Sketcher.Constraint("DistanceY", 3, 2, 4, 2, Q("15.24147 mm")),
])
pad7 = body.newObject("PartDesign::Pad", "Pad006")
pad7.Profile = sketch12
pad7.Length = 6.5

# Sketch on XY plane
sketch13 = body.newObject("Sketcher::SketchObject", "Sketch012")
sketch13.AttachmentSupport = (doc.getObject("XY_Plane"), [""])
sketch13.MapMode = "FlatFace"
sketch13.AttachmentOffset = App.Placement(App.Vector(0, 0, -13), App.Rotation())
sketch13.addGeometry([
    Part.Circle(App.Vector(23.5, 7.5, 0), App.Vector(0, 0, 1), 32.5),
    Part.Circle(App.Vector(23.5, 7.5, 0), App.Vector(0, 0, 1), 20),
    Part.Circle(App.Vector(-2.75, 7.5, 0), App.Vector(0, 0, 1), 3.7),
], False)
sketch13.addConstraint([
    Sketcher.Constraint("Coincident", 1, 3, 0, 3),
    Sketcher.Constraint("Horizontal", 1, 3, 2, 3),
    Sketcher.Constraint("Diameter", 0, Q("65 mm")),
    Sketcher.Constraint("Diameter", 1, Q("40 mm")),
    Sketcher.Constraint("Diameter", 2, Q("7.4 mm")),
    Sketcher.Constraint("DistanceX", -1, 1, 0, 3, Q("23.5 mm")),
    Sketcher.Constraint("DistanceY", -1, 1, 0, 3, Q("7.5 mm")),
    Sketcher.Constraint("DistanceX", 2, 3, -1, 1, Q("2.75 mm")),
])
pad8 = body.newObject("PartDesign::Pad", "Pad007")
pad8.Profile = sketch13
pad8.Length = 14
doc.recompute()

chamfer3 = body.newObject("PartDesign::Chamfer", "Chamfer002")
chamfer3.Base = (pad8, edges_at(pad8, [(0.95, 7.5, -13)]))
chamfer3.Size = 1.5

# Sketch on XY plane
sketch14 = body.newObject("Sketcher::SketchObject", "Sketch013")
sketch14.AttachmentSupport = (doc.getObject("XY_Plane"), [""])
sketch14.MapMode = "FlatFace"
sketch14.AttachmentOffset = App.Placement(App.Vector(0, 0, 1), App.Rotation())
sketch14.addGeometry(Part.Circle(App.Vector(-2.75, 7.5, 0), App.Vector(0, 0, 1), 3.7), False)
sketch14.addConstraint([
    Sketcher.Constraint("Diameter", 0, Q("7.4 mm")),
    Sketcher.Constraint("DistanceY", -1, 1, 0, 3, Q("7.5 mm")),
    Sketcher.Constraint("DistanceX", 0, 3, -1, 1, Q("2.75 mm")),
])
pocket6 = body.newObject("PartDesign::Pocket", "Pocket005")
pocket6.Profile = sketch14
pocket6.Type = "ThroughAll"
pocket6.Midplane = True

doc.recompute()
